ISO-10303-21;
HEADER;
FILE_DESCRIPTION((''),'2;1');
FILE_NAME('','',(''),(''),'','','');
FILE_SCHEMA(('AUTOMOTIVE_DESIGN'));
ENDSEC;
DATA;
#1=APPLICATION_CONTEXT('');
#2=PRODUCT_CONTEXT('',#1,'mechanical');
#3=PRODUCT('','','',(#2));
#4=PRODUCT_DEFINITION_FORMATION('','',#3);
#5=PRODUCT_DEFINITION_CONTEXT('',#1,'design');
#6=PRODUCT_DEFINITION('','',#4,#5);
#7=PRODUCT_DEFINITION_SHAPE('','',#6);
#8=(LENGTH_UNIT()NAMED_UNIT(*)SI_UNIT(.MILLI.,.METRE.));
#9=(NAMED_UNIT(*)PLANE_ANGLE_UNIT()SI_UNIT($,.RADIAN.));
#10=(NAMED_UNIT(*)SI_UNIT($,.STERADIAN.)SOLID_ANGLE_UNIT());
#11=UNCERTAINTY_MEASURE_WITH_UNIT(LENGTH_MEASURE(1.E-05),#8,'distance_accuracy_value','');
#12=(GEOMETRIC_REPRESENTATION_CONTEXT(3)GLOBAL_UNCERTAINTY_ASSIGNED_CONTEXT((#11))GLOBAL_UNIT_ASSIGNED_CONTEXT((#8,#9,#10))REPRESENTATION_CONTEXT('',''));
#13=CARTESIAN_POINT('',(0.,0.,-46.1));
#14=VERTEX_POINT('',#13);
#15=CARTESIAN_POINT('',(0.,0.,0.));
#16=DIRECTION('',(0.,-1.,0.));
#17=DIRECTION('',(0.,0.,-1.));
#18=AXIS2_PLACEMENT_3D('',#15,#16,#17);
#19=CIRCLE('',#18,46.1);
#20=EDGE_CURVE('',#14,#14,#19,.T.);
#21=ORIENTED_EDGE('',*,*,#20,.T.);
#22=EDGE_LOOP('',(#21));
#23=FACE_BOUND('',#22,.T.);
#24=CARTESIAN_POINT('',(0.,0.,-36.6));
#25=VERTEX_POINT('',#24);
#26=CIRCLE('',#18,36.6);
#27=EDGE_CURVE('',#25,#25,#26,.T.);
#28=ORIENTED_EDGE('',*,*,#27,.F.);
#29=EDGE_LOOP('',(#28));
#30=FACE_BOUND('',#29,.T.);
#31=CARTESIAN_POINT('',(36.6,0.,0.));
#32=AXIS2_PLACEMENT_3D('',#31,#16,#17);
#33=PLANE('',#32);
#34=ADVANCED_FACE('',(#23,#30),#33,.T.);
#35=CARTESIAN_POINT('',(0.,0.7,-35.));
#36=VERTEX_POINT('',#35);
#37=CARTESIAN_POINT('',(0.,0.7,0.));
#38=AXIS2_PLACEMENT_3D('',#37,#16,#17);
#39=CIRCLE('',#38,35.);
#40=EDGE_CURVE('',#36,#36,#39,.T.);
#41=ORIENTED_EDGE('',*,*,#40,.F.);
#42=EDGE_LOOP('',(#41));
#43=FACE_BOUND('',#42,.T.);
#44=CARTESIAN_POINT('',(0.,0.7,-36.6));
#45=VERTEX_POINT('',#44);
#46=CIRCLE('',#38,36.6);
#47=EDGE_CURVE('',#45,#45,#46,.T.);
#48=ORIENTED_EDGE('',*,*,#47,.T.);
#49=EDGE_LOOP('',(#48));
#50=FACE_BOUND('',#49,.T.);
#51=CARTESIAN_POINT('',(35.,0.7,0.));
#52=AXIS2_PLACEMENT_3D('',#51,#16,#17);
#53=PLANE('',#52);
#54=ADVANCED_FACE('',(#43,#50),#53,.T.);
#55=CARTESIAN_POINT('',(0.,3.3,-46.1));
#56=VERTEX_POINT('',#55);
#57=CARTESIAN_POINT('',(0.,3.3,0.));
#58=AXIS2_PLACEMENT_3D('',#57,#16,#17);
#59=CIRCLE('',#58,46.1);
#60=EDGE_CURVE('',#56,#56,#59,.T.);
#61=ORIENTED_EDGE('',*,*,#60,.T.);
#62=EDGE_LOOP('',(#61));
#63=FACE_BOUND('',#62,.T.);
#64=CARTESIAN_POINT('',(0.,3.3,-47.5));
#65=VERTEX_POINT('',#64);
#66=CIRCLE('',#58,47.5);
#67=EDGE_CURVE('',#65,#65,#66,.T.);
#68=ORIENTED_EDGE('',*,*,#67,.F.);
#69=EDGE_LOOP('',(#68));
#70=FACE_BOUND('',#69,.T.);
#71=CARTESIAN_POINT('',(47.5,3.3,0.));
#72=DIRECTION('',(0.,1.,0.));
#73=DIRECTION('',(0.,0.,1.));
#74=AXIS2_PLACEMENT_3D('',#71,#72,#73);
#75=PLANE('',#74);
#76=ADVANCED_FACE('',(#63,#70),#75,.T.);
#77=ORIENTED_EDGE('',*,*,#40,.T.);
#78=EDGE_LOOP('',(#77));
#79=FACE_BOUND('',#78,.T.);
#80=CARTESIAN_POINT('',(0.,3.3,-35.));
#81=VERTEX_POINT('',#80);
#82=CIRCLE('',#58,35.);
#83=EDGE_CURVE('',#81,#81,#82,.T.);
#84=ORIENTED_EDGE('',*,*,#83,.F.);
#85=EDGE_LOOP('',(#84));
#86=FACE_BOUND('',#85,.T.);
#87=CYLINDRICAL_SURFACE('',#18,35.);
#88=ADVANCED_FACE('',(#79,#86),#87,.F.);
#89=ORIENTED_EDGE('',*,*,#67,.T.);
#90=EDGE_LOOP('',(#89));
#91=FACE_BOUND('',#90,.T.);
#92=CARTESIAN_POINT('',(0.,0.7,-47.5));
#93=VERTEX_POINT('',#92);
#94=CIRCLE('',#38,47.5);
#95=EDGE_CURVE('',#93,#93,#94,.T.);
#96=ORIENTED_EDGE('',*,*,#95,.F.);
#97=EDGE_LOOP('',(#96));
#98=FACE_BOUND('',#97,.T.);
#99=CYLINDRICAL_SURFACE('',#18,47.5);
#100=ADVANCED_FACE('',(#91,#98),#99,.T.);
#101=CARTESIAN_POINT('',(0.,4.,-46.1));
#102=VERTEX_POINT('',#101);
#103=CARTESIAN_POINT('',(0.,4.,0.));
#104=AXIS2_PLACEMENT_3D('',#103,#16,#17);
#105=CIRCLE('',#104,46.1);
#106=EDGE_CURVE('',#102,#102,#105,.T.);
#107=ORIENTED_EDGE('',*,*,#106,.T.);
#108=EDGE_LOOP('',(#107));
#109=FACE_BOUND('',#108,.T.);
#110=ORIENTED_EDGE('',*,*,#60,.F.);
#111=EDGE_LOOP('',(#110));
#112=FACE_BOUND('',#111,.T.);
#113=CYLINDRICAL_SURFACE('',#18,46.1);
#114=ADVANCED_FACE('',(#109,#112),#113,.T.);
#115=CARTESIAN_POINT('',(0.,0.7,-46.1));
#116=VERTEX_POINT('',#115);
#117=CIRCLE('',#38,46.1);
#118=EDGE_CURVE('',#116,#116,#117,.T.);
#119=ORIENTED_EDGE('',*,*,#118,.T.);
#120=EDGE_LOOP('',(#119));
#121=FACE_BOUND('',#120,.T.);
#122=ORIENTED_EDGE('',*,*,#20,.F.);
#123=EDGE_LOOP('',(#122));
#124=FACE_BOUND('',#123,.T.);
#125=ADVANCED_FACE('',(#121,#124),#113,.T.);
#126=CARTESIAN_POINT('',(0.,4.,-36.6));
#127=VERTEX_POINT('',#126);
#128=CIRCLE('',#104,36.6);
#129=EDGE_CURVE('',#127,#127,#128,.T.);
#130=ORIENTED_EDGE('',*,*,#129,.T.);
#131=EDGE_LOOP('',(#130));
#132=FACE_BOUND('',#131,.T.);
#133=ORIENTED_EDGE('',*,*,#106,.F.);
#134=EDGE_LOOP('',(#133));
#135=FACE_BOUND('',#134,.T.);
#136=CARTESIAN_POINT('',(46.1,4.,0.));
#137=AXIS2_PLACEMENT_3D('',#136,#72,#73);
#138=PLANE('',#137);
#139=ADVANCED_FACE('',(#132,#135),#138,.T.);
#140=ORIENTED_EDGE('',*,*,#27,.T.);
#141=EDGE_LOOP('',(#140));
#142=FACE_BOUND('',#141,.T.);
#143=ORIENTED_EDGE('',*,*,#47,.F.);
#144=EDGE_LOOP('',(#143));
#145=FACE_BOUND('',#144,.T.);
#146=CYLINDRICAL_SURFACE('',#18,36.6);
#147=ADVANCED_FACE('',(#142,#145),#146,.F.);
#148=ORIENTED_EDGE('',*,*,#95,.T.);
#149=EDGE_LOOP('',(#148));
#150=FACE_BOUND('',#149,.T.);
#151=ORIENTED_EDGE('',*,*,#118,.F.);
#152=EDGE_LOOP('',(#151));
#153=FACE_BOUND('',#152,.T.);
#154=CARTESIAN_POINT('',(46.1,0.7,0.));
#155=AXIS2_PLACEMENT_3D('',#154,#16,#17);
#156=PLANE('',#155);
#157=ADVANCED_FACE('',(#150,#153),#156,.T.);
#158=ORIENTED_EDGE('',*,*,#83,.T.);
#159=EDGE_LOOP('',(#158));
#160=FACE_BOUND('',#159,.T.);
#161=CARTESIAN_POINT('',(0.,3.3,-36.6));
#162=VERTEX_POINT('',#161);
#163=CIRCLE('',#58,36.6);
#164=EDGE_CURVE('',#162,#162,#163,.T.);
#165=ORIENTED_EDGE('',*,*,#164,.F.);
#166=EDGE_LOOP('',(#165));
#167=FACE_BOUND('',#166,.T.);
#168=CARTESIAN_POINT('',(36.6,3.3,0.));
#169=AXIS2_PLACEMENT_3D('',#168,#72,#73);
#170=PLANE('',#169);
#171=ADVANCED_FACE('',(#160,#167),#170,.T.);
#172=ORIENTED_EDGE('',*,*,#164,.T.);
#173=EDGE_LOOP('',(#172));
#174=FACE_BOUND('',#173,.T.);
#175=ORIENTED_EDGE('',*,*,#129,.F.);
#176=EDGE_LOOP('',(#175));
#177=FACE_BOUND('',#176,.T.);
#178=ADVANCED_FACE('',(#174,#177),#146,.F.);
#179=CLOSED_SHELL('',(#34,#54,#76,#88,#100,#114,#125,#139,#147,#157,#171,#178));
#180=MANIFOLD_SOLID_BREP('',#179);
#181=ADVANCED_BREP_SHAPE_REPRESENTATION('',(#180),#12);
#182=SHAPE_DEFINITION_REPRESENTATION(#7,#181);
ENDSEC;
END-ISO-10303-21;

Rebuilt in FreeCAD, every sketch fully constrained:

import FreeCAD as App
import Part
import Sketcher
from FreeCAD import Vector
Q = App.Units.Quantity

doc = App.newDocument("Part")
params = doc.addObject("Spreadsheet::Sheet", "Params")
for row, (alias, value) in enumerate([
    ("sketch1_width", "9.5 mm"),
    ("sketch1_width2", "1.4 mm"),
    ("sketch1_width3", "1.6 mm"),
    ("sketch1_height", "0.7 mm"),
    ("sketch1_height2", "2.6 mm"),
    ("revolution_angle", "360 deg"),
], start=1):
    params.set(f"A{row}", alias)
    params.set(f"B{row}", "=" + value)
    params.setAlias(f"B{row}", alias)

body = doc.addObject("PartDesign::Body", "Body")

sketch1 = body.newObject("Sketcher::SketchObject", "Sketch")
sketch1.AttachmentSupport = (doc.getObject("XY_Plane"), [""])
sketch1.MapMode = "FlatFace"
sketch1.addGeometry(Part.LineSegment(Vector(36.6, 0, 0), Vector(46.1, 0, 0)), False)
sketch1.addGeometry(Part.LineSegment(Vector(46.1, 0, 0), Vector(46.1, 0.7, 0)), False)
sketch1.addGeometry(Part.LineSegment(Vector(46.1, 0.7, 0), Vector(47.5, 0.7, 0)), False)
sketch1.addGeometry(Part.LineSegment(Vector(47.5, 0.7, 0), Vector(47.5, 3.3, 0)), False)
sketch1.addGeometry(Part.LineSegment(Vector(47.5, 3.3, 0), Vector(46.1, 3.3, 0)), False)
sketch1.addGeometry(Part.LineSegment(Vector(46.1, 3.3, 0), Vector(46.1, 4, 0)), False)
sketch1.addGeometry(Part.LineSegment(Vector(46.1, 4, 0), Vector(36.6, 4, 0)), False)
sketch1.addGeometry(Part.LineSegment(Vector(36.6, 4, 0), Vector(36.6, 3.3, 0)), False)
sketch1.addGeometry(Part.LineSegment(Vector(36.6, 3.3, 0), Vector(35, 3.3, 0)), False)
sketch1.addGeometry(Part.LineSegment(Vector(35, 3.3, 0), Vector(35, 0.7, 0)), False)
sketch1.addGeometry(Part.LineSegment(Vector(35, 0.7, 0), Vector(36.6, 0.7, 0)), False)
sketch1.addGeometry(Part.LineSegment(Vector(36.6, 0.7, 0), Vector(36.6, 0, 0)), False)
sketch1.addConstraint(Sketcher.Constraint("Coincident", 0, 2, 1, 1))
sketch1.addConstraint(Sketcher.Constraint("Coincident", 1, 2, 2, 1))
sketch1.addConstraint(Sketcher.Constraint("Coincident", 2, 2, 3, 1))
sketch1.addConstraint(Sketcher.Constraint("Coincident", 3, 2, 4, 1))
sketch1.addConstraint(Sketcher.Constraint("Coincident", 4, 2, 5, 1))
sketch1.addConstraint(Sketcher.Constraint("Coincident", 5, 2, 6, 1))
sketch1.addConstraint(Sketcher.Constraint("Coincident", 6, 2, 7, 1))
sketch1.addConstraint(Sketcher.Constraint("Coincident", 7, 2, 8, 1))
sketch1.addConstraint(Sketcher.Constraint("Coincident", 8, 2, 9, 1))
sketch1.addConstraint(Sketcher.Constraint("Coincident", 9, 2, 10, 1))
sketch1.addConstraint(Sketcher.Constraint("Coincident", 10, 2, 11, 1))
sketch1.addConstraint(Sketcher.Constraint("Coincident", 11, 2, 0, 1))
sketch1.addConstraint(Sketcher.Constraint("Horizontal", 0))
sketch1.addConstraint(Sketcher.Constraint("Vertical", 1))
sketch1.addConstraint(Sketcher.Constraint("Horizontal", 2))
sketch1.addConstraint(Sketcher.Constraint("Vertical", 3))
sketch1.addConstraint(Sketcher.Constraint("Horizontal", 4))
sketch1.addConstraint(Sketcher.Constraint("Vertical", 5))
sketch1.addConstraint(Sketcher.Constraint("Horizontal", 6))
sketch1.addConstraint(Sketcher.Constraint("Vertical", 7))
sketch1.addConstraint(Sketcher.Constraint("Horizontal", 8))
sketch1.addConstraint(Sketcher.Constraint("Vertical", 9))
sketch1.addConstraint(Sketcher.Constraint("Horizontal", 10))
sketch1.addConstraint(Sketcher.Constraint("Vertical", 11))
sketch1.addConstraint(Sketcher.Constraint("PointOnObject", 0, 2, -1))
sketch1.addConstraint(Sketcher.Constraint("Horizontal", 4, 2, 7, 2))
sketch1.addConstraint(Sketcher.Constraint("Horizontal", 2, 2, 9, 2))
sketch1.addConstraint(Sketcher.Constraint("Vertical", 1, 2, 4, 2))
sketch1.addConstraint(Sketcher.Constraint("Vertical", 7, 2, 10, 2))
sketch1.addConstraint(Sketcher.Constraint("Equal", 1, 5))
sketch1.addConstraint(Sketcher.Constraint("DistanceX", 0, 1, 0, 2, Q("9.5 mm")))
sketch1.addConstraint(Sketcher.Constraint("DistanceX", 2, 1, 2, 2, Q("1.4 mm")))
sketch1.addConstraint(Sketcher.Constraint("DistanceX", 8, 2, 8, 1, Q("1.6 mm")))
sketch1.addConstraint(Sketcher.Constraint("DistanceY", 1, 1, 1, 2, Q("0.7 mm")))
sketch1.addConstraint(Sketcher.Constraint("DistanceY", 3, 1, 3, 2, Q("2.6 mm")))
sketch1.addConstraint(Sketcher.Constraint("DistanceX", -1, 1, 8, 2, Q("35 mm")))
sketch1.setExpression("Constraints[30]", "Params.sketch1_width")
sketch1.setExpression("Constraints[31]", "Params.sketch1_width2")
sketch1.setExpression("Constraints[32]", "Params.sketch1_width3")
sketch1.setExpression("Constraints[33]", "Params.sketch1_height")
sketch1.setExpression("Constraints[34]", "Params.sketch1_height2")
revolution = body.newObject("PartDesign::Revolution", "Revolution")
revolution.Profile = sketch1
revolution.ReferenceAxis = (sketch1, ["V_Axis"])
revolution.setExpression("Angle", "Params.revolution_angle")

doc.recompute()
